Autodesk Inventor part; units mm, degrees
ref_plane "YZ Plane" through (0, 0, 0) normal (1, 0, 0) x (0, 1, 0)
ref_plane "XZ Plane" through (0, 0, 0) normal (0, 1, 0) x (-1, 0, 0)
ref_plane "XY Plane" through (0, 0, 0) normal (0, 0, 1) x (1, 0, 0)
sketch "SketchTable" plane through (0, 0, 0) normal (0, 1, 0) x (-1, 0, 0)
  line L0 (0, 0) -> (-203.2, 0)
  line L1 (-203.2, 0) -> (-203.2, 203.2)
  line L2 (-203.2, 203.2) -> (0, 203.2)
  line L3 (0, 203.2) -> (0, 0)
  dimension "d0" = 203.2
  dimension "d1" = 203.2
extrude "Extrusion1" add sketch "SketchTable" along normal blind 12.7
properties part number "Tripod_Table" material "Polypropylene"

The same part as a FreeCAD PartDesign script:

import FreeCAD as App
import Part
import Sketcher
from FreeCAD import Vector
Q = App.Units.Quantity

doc = App.newDocument("Part")
params = doc.addObject("Spreadsheet::Sheet", "Params")
for row, (alias, value) in enumerate([
    ("sketch1_width", "8 in"),
    ("pad1_length", "0.5 in"),
], start=1):
    params.set(f"A{row}", alias)
    params.set(f"B{row}", "=" + value)
    params.setAlias(f"B{row}", alias)

body = doc.addObject("PartDesign::Body", "Body")

# Sketch on XZ plane
sketch1 = body.newObject("Sketcher::SketchObject", "Sketch")
sketch1.AttachmentSupport = (doc.getObject("XZ_Plane"), [""])
sketch1.MapMode = "FlatFace"
sketch1.addGeometry(Part.LineSegment(Vector(203, 0, 0), Vector(0, 0, 0)), False)
sketch1.addGeometry(Part.LineSegment(Vector(0, 0, 0), Vector(0, 203, 0)), False)
sketch1.addGeometry(Part.LineSegment(Vector(0, 203, 0), Vector(203, 203, 0)), False)
sketch1.addGeometry(Part.LineSegment(Vector(203, 203, 0), Vector(203, 0, 0)), False)
sketch1.addConstraint(Sketcher.Constraint("Coincident", 0, 2, 1, 1))
sketch1.addConstraint(Sketcher.Constraint("Coincident", 1, 2, 2, 1))
sketch1.addConstraint(Sketcher.Constraint("Coincident", 2, 2, 3, 1))
sketch1.addConstraint(Sketcher.Constraint("Coincident", 3, 2, 0, 1))
sketch1.addConstraint(Sketcher.Constraint("Horizontal", 0))
sketch1.addConstraint(Sketcher.Constraint("Vertical", 1))
sketch1.addConstraint(Sketcher.Constraint("Horizontal", 2))
sketch1.addConstraint(Sketcher.Constraint("Vertical", 3))
sketch1.addConstraint(Sketcher.Constraint("Coincident", 0, 2, -1, 1))
sketch1.addConstraint(Sketcher.Constraint("Equal", 2, 1))
sketch1.addConstraint(Sketcher.Constraint("DistanceX", 0, 2, 0, 1, Q("8 in")))
sketch1.setExpression("Constraints[10]", "Params.sketch1_width")
pad1 = body.newObject("PartDesign::Pad", "Pad")
pad1.Profile = sketch1
pad1.setExpression("Length", "Params.pad1_length")
pad1.Reversed = True

doc.recompute()
